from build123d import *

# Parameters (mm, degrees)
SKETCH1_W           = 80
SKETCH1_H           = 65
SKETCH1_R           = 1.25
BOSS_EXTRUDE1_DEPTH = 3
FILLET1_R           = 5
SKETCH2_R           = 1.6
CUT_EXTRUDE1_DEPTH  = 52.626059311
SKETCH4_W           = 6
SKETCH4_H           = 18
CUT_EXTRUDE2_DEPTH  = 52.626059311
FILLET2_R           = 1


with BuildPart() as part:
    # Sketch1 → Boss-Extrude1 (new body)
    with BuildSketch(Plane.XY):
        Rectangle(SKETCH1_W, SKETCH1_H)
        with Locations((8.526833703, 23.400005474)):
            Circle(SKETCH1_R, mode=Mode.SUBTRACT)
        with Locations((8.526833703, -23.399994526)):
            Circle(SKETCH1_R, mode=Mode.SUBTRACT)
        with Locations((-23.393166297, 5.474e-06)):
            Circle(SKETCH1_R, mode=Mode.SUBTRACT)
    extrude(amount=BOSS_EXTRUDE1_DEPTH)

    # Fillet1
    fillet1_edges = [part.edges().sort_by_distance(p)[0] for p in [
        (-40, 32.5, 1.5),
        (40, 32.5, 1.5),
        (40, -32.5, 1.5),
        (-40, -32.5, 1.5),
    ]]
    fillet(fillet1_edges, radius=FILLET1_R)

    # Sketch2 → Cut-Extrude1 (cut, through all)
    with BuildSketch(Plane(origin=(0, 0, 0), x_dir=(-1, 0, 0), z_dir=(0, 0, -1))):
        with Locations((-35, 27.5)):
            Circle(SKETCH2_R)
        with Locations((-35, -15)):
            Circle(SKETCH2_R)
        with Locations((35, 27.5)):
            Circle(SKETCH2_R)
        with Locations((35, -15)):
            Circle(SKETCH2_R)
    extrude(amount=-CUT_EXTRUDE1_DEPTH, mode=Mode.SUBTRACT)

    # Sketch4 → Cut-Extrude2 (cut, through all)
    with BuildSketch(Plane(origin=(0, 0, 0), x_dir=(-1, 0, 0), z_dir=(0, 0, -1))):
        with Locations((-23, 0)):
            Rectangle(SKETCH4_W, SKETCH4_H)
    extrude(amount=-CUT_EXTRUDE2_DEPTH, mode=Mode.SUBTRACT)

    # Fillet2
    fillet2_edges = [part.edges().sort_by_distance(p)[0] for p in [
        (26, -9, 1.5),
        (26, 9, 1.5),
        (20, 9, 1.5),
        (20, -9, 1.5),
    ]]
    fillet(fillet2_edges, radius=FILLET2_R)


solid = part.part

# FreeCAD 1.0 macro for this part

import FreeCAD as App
import Part
import Sketcher

V = App.Vector
Q = App.Units.Quantity


def edges_at(feature, points):
    """Names of the edges that pass closest to the given points."""
    edges = feature.Shape.Edges
    near = lambda p: min(range(len(edges)), key=lambda i: edges[i].distToShape(Part.Vertex(*p))[0])
    return sorted({f"Edge{near(p) + 1}" for p in points})

doc = App.newDocument("Part")
body = doc.addObject("PartDesign::Body", "Body")

# Sketch on XY plane
sketch1 = doc.addObject("Sketcher::SketchObject", "Sketch")
body.addObject(sketch1)
sketch1.AttachmentSupport = (doc.XY_Plane, [""])
sketch1.MapMode = "FlatFace"
sketch1.addGeometry([
    Part.LineSegment(V(-40, 32.5, 0), V(-40, -32.5, 0)),  # 0
    Part.LineSegment(V(-40, -32.5, 0), V(40, -32.5, 0)),  # 1
    Part.LineSegment(V(40, -32.5, 0), V(40, 32.5, 0)),  # 2
    Part.LineSegment(V(40, 32.5, 0), V(-40, 32.5, 0)),  # 3
    Part.Circle(V(-23.393166, 0.000005, 0), V(0, 0, 1), 1.25),  # 4
    Part.Circle(V(8.526834, -23.399995, 0), V(0, 0, 1), 1.25),  # 5
    Part.Circle(V(8.526834, 23.400005, 0), V(0, 0, 1), 1.25),  # 6
], False)
sketch1.addConstraint([
    Sketcher.Constraint("Coincident", 0, 2, 1, 1),
    Sketcher.Constraint("Coincident", 1, 2, 2, 1),
    Sketcher.Constraint("Coincident", 2, 2, 3, 1),
    Sketcher.Constraint("Coincident", 3, 2, 0, 1),
    Sketcher.Constraint("Vertical", 0),
    Sketcher.Constraint("Horizontal", 1),
    Sketcher.Constraint("Vertical", 2),
    Sketcher.Constraint("Horizontal", 3),
    Sketcher.Constraint("Equal", 4, 5),
    Sketcher.Constraint("Equal", 5, 6),
    Sketcher.Constraint("Symmetric", 0, 2, 2, 2, -1, 1),
    Sketcher.Constraint("Vertical", 5, 3, 6, 3),
    Sketcher.Constraint("Diameter", 4, Q("2.5 mm")),
    Sketcher.Constraint("DistanceX", 1, 1, 1, 2, Q("80 mm")),
    Sketcher.Constraint("DistanceY", 0, 2, 0, 1, Q("65 mm")),
    Sketcher.Constraint("DistanceY", 5, 3, 4, 3, Q("23.4 mm")),
    Sketcher.Constraint("DistanceY", 4, 3, 6, 3, Q("23.4 mm")),
    Sketcher.Constraint("DistanceX", 4, 3, 5, 3, Q("31.92 mm")),
    Sketcher.Constraint("DistanceX", 4, 3, -1, 1, Q("23.393166 mm")),
    Sketcher.Constraint("DistanceY", 5, 3, -1, 1, Q("23.399995 mm")),
])
pad1 = doc.addObject("PartDesign::Pad", "Pad")
body.addObject(pad1)
pad1.Profile = sketch1
pad1.Length = 3
doc.recompute()

fillet = doc.addObject("PartDesign::Fillet", "Fillet")
body.addObject(fillet)
fillet.Base = (pad1, edges_at(pad1, [
    (-40, 32.5, 1.5),
    (40, 32.5, 1.5),
    (40, -32.5, 1.5),
    (-40, -32.5, 1.5),
]))
fillet.Radius = 5

# Sketch on XY plane
sketch2 = doc.addObject("Sketcher::SketchObject", "Sketch001")
body.addObject(sketch2)
sketch2.AttachmentSupport = (doc.XY_Plane, [""])
sketch2.MapMode = "FlatFace"
sketch2.addGeometry([
    Part.Circle(V(35, 27.5, 0), V(0, 0, 1), 1.6),
    Part.Circle(V(35, -15, 0), V(0, 0, 1), 1.6),
    Part.Circle(V(-35, 27.5, 0), V(0, 0, 1), 1.6),
    Part.Circle(V(-35, -15, 0), V(0, 0, 1), 1.6),
], False)
sketch2.addConstraint([
    Sketcher.Constraint("Equal", 0, 1),
    Sketcher.Constraint("Equal", 1, 2),
    Sketcher.Constraint("Equal", 2, 3),
    Sketcher.Constraint("Symmetric", 0, 3, 2, 3, -2),
    Sketcher.Constraint("Symmetric", 1, 3, 3, 3, -2),
    Sketcher.Constraint("Vertical", 0, 3, 1, 3),
    Sketcher.Constraint("Diameter", 0, Q("3.2 mm")),
    Sketcher.Constraint("DistanceX", -1, 1, 0, 3, Q("35 mm")),
    Sketcher.Constraint("DistanceY", 1, 3, -1, 1, Q("15 mm")),
    Sketcher.Constraint("DistanceY", -1, 1, 0, 3, Q("27.5 mm")),
])
pocket1 = doc.addObject("PartDesign::Pocket", "Pocket")
body.addObject(pocket1)
pocket1.Profile = sketch2
pocket1.Type = "ThroughAll"
pocket1.Reversed = True

# Sketch on XY plane
sketch3 = doc.addObject("Sketcher::SketchObject", "Sketch002")
body.addObject(sketch3)
sketch3.AttachmentSupport = (doc.XY_Plane, [""])
sketch3.MapMode = "FlatFace"
sketch3.addGeometry([
    Part.LineSegment(V(26, 9, 0), V(26, -9, 0)),
    Part.LineSegment(V(26, -9, 0), V(20, -9, 0)),
    Part.LineSegment(V(20, -9, 0), V(20, 9, 0)),
    Part.LineSegment(V(20, 9, 0), V(26, 9, 0)),
], False)
sketch3.addConstraint([
    Sketcher.Constraint("Coincident", 0, 2, 1, 1),
    Sketcher.Constraint("Coincident", 1, 2, 2, 1),
    Sketcher.Constraint("Coincident", 2, 2, 3, 1),
    Sketcher.Constraint("Coincident", 3, 2, 0, 1),
    Sketcher.Constraint("Vertical", 0),
    Sketcher.Constraint("Horizontal", 1),
    Sketcher.Constraint("Vertical", 2),
    Sketcher.Constraint("Horizontal", 3),
    Sketcher.Constraint("DistanceX", 1, 2, 1, 1, Q("6 mm")),
    Sketcher.Constraint("DistanceY", 0, 2, 0, 1, Q("18 mm")),
    Sketcher.Constraint("DistanceX", -1, 1, 0, 2, Q("26 mm")),
    Sketcher.Constraint("DistanceY", 0, 2, -1, 1, Q("9 mm")),
])
pocket2 = doc.addObject("PartDesign::Pocket", "Pocket001")
body.addObject(pocket2)
pocket2.Profile = sketch3
pocket2.Type = "ThroughAll"
pocket2.Reversed = True
doc.recompute()

fillet2 = doc.addObject("PartDesign::Fillet", "Fillet001")
body.addObject(fillet2)
fillet2.Base = (pocket2, edges_at(pocket2, [
    (26, -9, 1.5),
    (26, 9, 1.5),
    (20, 9, 1.5),
    (20, -9, 1.5),
]))
fillet2.Radius = 1

doc.recompute()
